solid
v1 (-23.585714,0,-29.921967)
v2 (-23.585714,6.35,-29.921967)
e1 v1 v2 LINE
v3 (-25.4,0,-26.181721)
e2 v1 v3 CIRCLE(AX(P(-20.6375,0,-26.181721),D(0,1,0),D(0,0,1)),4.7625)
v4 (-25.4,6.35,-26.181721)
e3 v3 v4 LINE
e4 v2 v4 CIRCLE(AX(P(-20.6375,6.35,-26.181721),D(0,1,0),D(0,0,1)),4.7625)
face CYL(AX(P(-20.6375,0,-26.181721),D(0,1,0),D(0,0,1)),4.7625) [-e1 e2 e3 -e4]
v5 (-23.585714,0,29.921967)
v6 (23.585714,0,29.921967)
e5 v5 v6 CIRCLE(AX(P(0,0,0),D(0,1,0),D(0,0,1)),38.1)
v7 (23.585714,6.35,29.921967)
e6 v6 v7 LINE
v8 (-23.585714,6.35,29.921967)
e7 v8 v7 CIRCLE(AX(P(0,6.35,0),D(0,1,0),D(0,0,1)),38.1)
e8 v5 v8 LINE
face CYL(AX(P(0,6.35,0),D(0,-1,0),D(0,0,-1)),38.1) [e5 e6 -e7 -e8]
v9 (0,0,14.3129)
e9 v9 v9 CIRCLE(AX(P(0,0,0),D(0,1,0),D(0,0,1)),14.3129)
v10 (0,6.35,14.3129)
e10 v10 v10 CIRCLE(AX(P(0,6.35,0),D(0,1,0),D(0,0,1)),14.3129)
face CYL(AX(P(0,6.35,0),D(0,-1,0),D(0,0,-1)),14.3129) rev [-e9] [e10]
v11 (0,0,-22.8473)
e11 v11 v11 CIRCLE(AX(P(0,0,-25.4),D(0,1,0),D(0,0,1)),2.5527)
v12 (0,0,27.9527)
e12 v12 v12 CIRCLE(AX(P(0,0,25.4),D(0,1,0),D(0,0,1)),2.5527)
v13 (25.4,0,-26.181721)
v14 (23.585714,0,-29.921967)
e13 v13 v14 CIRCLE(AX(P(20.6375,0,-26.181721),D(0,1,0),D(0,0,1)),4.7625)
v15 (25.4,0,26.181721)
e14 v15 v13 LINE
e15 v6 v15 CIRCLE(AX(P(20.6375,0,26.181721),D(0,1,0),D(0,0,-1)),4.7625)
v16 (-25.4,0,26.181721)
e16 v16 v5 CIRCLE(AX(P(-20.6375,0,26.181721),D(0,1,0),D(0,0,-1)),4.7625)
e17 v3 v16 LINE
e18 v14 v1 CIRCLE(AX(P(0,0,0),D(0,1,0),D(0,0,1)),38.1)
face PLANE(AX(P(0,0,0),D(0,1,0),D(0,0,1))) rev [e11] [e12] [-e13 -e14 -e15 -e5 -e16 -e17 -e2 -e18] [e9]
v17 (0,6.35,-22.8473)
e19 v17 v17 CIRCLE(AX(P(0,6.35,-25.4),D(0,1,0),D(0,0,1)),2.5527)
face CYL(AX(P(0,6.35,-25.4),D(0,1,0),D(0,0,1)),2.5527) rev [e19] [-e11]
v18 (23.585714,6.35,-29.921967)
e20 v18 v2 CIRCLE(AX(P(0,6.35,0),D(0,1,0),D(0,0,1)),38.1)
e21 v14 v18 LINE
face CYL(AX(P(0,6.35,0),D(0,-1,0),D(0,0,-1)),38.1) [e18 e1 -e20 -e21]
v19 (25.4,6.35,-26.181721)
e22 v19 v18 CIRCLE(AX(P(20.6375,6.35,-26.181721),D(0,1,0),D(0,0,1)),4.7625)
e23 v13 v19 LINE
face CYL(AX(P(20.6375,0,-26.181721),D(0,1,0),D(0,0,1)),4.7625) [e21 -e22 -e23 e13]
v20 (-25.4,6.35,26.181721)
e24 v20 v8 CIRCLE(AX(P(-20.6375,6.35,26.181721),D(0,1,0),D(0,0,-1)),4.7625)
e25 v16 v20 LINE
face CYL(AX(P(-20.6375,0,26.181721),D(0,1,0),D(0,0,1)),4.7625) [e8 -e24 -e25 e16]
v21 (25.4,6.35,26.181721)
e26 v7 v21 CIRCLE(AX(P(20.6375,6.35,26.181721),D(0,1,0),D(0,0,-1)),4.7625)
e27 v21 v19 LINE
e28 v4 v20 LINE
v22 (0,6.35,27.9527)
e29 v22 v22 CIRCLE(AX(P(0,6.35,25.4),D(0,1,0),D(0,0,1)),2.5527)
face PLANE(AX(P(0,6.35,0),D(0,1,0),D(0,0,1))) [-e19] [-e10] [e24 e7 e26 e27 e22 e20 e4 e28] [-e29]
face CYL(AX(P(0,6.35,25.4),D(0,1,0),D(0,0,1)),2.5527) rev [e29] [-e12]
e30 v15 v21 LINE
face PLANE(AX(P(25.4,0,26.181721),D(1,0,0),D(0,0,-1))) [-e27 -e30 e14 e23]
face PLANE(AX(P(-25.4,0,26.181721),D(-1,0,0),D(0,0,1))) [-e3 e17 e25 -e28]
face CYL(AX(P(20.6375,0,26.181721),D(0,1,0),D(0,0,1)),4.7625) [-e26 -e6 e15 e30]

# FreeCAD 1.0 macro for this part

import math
import FreeCAD as App
import Part
import Sketcher
Q = App.Units.Quantity

doc = App.newDocument("Part")
body = doc.addObject("PartDesign::Body", "Body")

# Sketch on XZ plane
sketch1 = body.newObject("Sketcher::SketchObject", "Sketch")
sketch1.AttachmentSupport = (doc.getObject("XZ_Plane"), [""])
sketch1.MapMode = "FlatFace"
sketch1.addGeometry(Part.Circle(App.Vector(0, 0, 0), App.Vector(0, 0, 1), 38), False)
sketch1.addGeometry(Part.Circle(App.Vector(0, 0, 0), App.Vector(0, 0, 1), 14), False)
sketch1.addConstraint(Sketcher.Constraint("Coincident", 0, 3, -1, 1))
sketch1.addConstraint(Sketcher.Constraint("Coincident", 1, 3, -1, 1))
sketch1.addConstraint(Sketcher.Constraint("Diameter", 0, Q("3 in")))
sketch1.addConstraint(Sketcher.Constraint("Diameter", 1, Q("1.127 in")))
pad1 = body.newObject("PartDesign::Pad", "Pad")
pad1.Profile = sketch1
pad1.Length = Q("0.25 in")
pad1.Reversed = True

# Sketch on XZ plane
sketch2 = body.newObject("Sketcher::SketchObject", "Sketch001")
sketch2.AttachmentSupport = (doc.getObject("XZ_Plane"), [""])
sketch2.MapMode = "FlatFace"
sketch2.AttachmentOffset = App.Placement(App.Vector(0, 0, -0.25 * 25.4), App.Rotation())
sketch2.addGeometry(Part.LineSegment(App.Vector(-49.9, -49.9, 0), App.Vector(-49.9, 49.9, 0)), False)
sketch2.addGeometry(Part.LineSegment(App.Vector(-49.9, 49.9, 0), App.Vector(49.9, 49.9, 0)), False)
sketch2.addGeometry(Part.LineSegment(App.Vector(49.9, 49.9, 0), App.Vector(49.9, -49.9, 0)), False)
sketch2.addGeometry(Part.LineSegment(App.Vector(49.9, -49.9, 0), App.Vector(-49.9, -49.9, 0)), False)
sketch2.addGeometry(Part.ArcOfCircle(Part.Circle(App.Vector(-20.6, 26.2, 0), App.Vector(0, 0, 1), 4.8), math.radians(128), math.radians(180)), False)
sketch2.addGeometry(Part.LineSegment(App.Vector(-25.4, 26.2, 0), App.Vector(-25.4, -26.2, 0)), False)
sketch2.addGeometry(Part.ArcOfCircle(Part.Circle(App.Vector(-20.6, -26.2, 0), App.Vector(0, 0, 1), 4.8), math.radians(-180), math.radians(-128)), False)
sketch2.addGeometry(Part.ArcOfCircle(Part.Circle(App.Vector(0, 0, 0), App.Vector(0, 0, 1), 38.1), math.radians(-128), math.radians(-52)), False)
sketch2.addGeometry(Part.ArcOfCircle(Part.Circle(App.Vector(20.6, -26.2, 0), App.Vector(0, 0, 1), 4.8), math.radians(-52), math.radians(0)), False)
sketch2.addGeometry(Part.LineSegment(App.Vector(25.4, -26.2, 0), App.Vector(25.4, 26.2, 0)), False)
sketch2.addGeometry(Part.ArcOfCircle(Part.Circle(App.Vector(20.6, 26.2, 0), App.Vector(0, 0, 1), 4.8), math.radians(0), math.radians(52)), False)
sketch2.addGeometry(Part.ArcOfCircle(Part.Circle(App.Vector(0, 0, 0), App.Vector(0, 0, 1), 38.1), math.radians(52), math.radians(128)), False)
sketch2.addConstraint(Sketcher.Constraint("Coincident", 0, 2, 1, 1))
sketch2.addConstraint(Sketcher.Constraint("Coincident", 1, 2, 2, 1))
sketch2.addConstraint(Sketcher.Constraint("Coincident", 2, 2, 3, 1))
sketch2.addConstraint(Sketcher.Constraint("Coincident", 3, 2, 0, 1))
sketch2.addConstraint(Sketcher.Constraint("Tangent", 4, 2, 5, 1))
sketch2.addConstraint(Sketcher.Constraint("Tangent", 5, 2, 6, 1))
sketch2.addConstraint(Sketcher.Constraint("Tangent", 6, 2, 7, 1))
sketch2.addConstraint(Sketcher.Constraint("Tangent", 7, 2, 8, 1))
sketch2.addConstraint(Sketcher.Constraint("Tangent", 8, 2, 9, 1))
sketch2.addConstraint(Sketcher.Constraint("Tangent", 9, 2, 10, 1))
sketch2.addConstraint(Sketcher.Constraint("Tangent", 10, 2, 11, 1))
sketch2.addConstraint(Sketcher.Constraint("Tangent", 11, 2, 4, 1))
sketch2.addConstraint(Sketcher.Constraint("Vertical", 0))
sketch2.addConstraint(Sketcher.Constraint("Horizontal", 1))
sketch2.addConstraint(Sketcher.Constraint("Vertical", 2))
sketch2.addConstraint(Sketcher.Constraint("Horizontal", 3))
sketch2.addConstraint(Sketcher.Constraint("Vertical", 5))
sketch2.addConstraint(Sketcher.Constraint("Vertical", 9))
sketch2.addConstraint(Sketcher.Constraint("Coincident", 7, 3, -1, 1))
sketch2.addConstraint(Sketcher.Constraint("Coincident", 11, 3, -1, 1))
sketch2.addConstraint(Sketcher.Constraint("Equal", 4, 6))
sketch2.addConstraint(Sketcher.Constraint("Equal", 6, 8))
sketch2.addConstraint(Sketcher.Constraint("Equal", 8, 10))
sketch2.addConstraint(Sketcher.Constraint("Equal", 7, 11))
sketch2.addConstraint(Sketcher.Constraint("Symmetric", 0, 2, 2, 2, -1, 1))
sketch2.addConstraint(Sketcher.Constraint("Horizontal", 6, 3, 8, 3))
sketch2.addConstraint(Sketcher.Constraint("Equal", 3, 0))
sketch2.addConstraint(Sketcher.Constraint("Radius", 7, Q("1.5 in")))
sketch2.addConstraint(Sketcher.Constraint("DistanceX", 4, 2, -1, 1, Q("1 in")))
sketch2.addConstraint(Sketcher.Constraint("Radius", 4, Q("0.1875 in")))
sketch2.addConstraint(Sketcher.Constraint("DistanceX", 1, 1, 1, 2, Q("99.79 mm")))
pocket1 = body.newObject("PartDesign::Pocket", "Pocket")
pocket1.Profile = sketch2
pocket1.Type = "ThroughAll"
pocket1.Reversed = True

# Sketch on XZ plane
sketch3 = body.newObject("Sketcher::SketchObject", "Sketch002")
sketch3.AttachmentSupport = (doc.getObject("XZ_Plane"), [""])
sketch3.MapMode = "FlatFace"
sketch3.AttachmentOffset = App.Placement(App.Vector(0, 0, -0.25 * 25.4), App.Rotation())
sketch3.addGeometry(Part.Circle(App.Vector(0, -25.4, 0), App.Vector(0, 0, 1), 2.6), False)
sketch3.addGeometry(Part.Circle(App.Vector(0, 25.4, 0), App.Vector(0, 0, 1), 2.6), False)
sketch3.addConstraint(Sketcher.Constraint("Equal", 0, 1))
sketch3.addConstraint(Sketcher.Constraint("Symmetric", 0, 3, 1, 3, -1, 1))
sketch3.addConstraint(Sketcher.Constraint("PointOnObject", 0, 3, -2))
sketch3.addConstraint(Sketcher.Constraint("Diameter", 0, Q("0.201 in")))
sketch3.addConstraint(Sketcher.Constraint("DistanceY", 0, 3, -1, 1, Q("1 in")))
doc.recompute()
hole = body.newObject("PartDesign::Hole", "Hole")
hole.Profile = sketch3
hole.ThreadType = "None"
hole.Diameter = Q("0.201 in")
hole.DepthType = "ThroughAll"
hole.Reversed = True

doc.recompute()
